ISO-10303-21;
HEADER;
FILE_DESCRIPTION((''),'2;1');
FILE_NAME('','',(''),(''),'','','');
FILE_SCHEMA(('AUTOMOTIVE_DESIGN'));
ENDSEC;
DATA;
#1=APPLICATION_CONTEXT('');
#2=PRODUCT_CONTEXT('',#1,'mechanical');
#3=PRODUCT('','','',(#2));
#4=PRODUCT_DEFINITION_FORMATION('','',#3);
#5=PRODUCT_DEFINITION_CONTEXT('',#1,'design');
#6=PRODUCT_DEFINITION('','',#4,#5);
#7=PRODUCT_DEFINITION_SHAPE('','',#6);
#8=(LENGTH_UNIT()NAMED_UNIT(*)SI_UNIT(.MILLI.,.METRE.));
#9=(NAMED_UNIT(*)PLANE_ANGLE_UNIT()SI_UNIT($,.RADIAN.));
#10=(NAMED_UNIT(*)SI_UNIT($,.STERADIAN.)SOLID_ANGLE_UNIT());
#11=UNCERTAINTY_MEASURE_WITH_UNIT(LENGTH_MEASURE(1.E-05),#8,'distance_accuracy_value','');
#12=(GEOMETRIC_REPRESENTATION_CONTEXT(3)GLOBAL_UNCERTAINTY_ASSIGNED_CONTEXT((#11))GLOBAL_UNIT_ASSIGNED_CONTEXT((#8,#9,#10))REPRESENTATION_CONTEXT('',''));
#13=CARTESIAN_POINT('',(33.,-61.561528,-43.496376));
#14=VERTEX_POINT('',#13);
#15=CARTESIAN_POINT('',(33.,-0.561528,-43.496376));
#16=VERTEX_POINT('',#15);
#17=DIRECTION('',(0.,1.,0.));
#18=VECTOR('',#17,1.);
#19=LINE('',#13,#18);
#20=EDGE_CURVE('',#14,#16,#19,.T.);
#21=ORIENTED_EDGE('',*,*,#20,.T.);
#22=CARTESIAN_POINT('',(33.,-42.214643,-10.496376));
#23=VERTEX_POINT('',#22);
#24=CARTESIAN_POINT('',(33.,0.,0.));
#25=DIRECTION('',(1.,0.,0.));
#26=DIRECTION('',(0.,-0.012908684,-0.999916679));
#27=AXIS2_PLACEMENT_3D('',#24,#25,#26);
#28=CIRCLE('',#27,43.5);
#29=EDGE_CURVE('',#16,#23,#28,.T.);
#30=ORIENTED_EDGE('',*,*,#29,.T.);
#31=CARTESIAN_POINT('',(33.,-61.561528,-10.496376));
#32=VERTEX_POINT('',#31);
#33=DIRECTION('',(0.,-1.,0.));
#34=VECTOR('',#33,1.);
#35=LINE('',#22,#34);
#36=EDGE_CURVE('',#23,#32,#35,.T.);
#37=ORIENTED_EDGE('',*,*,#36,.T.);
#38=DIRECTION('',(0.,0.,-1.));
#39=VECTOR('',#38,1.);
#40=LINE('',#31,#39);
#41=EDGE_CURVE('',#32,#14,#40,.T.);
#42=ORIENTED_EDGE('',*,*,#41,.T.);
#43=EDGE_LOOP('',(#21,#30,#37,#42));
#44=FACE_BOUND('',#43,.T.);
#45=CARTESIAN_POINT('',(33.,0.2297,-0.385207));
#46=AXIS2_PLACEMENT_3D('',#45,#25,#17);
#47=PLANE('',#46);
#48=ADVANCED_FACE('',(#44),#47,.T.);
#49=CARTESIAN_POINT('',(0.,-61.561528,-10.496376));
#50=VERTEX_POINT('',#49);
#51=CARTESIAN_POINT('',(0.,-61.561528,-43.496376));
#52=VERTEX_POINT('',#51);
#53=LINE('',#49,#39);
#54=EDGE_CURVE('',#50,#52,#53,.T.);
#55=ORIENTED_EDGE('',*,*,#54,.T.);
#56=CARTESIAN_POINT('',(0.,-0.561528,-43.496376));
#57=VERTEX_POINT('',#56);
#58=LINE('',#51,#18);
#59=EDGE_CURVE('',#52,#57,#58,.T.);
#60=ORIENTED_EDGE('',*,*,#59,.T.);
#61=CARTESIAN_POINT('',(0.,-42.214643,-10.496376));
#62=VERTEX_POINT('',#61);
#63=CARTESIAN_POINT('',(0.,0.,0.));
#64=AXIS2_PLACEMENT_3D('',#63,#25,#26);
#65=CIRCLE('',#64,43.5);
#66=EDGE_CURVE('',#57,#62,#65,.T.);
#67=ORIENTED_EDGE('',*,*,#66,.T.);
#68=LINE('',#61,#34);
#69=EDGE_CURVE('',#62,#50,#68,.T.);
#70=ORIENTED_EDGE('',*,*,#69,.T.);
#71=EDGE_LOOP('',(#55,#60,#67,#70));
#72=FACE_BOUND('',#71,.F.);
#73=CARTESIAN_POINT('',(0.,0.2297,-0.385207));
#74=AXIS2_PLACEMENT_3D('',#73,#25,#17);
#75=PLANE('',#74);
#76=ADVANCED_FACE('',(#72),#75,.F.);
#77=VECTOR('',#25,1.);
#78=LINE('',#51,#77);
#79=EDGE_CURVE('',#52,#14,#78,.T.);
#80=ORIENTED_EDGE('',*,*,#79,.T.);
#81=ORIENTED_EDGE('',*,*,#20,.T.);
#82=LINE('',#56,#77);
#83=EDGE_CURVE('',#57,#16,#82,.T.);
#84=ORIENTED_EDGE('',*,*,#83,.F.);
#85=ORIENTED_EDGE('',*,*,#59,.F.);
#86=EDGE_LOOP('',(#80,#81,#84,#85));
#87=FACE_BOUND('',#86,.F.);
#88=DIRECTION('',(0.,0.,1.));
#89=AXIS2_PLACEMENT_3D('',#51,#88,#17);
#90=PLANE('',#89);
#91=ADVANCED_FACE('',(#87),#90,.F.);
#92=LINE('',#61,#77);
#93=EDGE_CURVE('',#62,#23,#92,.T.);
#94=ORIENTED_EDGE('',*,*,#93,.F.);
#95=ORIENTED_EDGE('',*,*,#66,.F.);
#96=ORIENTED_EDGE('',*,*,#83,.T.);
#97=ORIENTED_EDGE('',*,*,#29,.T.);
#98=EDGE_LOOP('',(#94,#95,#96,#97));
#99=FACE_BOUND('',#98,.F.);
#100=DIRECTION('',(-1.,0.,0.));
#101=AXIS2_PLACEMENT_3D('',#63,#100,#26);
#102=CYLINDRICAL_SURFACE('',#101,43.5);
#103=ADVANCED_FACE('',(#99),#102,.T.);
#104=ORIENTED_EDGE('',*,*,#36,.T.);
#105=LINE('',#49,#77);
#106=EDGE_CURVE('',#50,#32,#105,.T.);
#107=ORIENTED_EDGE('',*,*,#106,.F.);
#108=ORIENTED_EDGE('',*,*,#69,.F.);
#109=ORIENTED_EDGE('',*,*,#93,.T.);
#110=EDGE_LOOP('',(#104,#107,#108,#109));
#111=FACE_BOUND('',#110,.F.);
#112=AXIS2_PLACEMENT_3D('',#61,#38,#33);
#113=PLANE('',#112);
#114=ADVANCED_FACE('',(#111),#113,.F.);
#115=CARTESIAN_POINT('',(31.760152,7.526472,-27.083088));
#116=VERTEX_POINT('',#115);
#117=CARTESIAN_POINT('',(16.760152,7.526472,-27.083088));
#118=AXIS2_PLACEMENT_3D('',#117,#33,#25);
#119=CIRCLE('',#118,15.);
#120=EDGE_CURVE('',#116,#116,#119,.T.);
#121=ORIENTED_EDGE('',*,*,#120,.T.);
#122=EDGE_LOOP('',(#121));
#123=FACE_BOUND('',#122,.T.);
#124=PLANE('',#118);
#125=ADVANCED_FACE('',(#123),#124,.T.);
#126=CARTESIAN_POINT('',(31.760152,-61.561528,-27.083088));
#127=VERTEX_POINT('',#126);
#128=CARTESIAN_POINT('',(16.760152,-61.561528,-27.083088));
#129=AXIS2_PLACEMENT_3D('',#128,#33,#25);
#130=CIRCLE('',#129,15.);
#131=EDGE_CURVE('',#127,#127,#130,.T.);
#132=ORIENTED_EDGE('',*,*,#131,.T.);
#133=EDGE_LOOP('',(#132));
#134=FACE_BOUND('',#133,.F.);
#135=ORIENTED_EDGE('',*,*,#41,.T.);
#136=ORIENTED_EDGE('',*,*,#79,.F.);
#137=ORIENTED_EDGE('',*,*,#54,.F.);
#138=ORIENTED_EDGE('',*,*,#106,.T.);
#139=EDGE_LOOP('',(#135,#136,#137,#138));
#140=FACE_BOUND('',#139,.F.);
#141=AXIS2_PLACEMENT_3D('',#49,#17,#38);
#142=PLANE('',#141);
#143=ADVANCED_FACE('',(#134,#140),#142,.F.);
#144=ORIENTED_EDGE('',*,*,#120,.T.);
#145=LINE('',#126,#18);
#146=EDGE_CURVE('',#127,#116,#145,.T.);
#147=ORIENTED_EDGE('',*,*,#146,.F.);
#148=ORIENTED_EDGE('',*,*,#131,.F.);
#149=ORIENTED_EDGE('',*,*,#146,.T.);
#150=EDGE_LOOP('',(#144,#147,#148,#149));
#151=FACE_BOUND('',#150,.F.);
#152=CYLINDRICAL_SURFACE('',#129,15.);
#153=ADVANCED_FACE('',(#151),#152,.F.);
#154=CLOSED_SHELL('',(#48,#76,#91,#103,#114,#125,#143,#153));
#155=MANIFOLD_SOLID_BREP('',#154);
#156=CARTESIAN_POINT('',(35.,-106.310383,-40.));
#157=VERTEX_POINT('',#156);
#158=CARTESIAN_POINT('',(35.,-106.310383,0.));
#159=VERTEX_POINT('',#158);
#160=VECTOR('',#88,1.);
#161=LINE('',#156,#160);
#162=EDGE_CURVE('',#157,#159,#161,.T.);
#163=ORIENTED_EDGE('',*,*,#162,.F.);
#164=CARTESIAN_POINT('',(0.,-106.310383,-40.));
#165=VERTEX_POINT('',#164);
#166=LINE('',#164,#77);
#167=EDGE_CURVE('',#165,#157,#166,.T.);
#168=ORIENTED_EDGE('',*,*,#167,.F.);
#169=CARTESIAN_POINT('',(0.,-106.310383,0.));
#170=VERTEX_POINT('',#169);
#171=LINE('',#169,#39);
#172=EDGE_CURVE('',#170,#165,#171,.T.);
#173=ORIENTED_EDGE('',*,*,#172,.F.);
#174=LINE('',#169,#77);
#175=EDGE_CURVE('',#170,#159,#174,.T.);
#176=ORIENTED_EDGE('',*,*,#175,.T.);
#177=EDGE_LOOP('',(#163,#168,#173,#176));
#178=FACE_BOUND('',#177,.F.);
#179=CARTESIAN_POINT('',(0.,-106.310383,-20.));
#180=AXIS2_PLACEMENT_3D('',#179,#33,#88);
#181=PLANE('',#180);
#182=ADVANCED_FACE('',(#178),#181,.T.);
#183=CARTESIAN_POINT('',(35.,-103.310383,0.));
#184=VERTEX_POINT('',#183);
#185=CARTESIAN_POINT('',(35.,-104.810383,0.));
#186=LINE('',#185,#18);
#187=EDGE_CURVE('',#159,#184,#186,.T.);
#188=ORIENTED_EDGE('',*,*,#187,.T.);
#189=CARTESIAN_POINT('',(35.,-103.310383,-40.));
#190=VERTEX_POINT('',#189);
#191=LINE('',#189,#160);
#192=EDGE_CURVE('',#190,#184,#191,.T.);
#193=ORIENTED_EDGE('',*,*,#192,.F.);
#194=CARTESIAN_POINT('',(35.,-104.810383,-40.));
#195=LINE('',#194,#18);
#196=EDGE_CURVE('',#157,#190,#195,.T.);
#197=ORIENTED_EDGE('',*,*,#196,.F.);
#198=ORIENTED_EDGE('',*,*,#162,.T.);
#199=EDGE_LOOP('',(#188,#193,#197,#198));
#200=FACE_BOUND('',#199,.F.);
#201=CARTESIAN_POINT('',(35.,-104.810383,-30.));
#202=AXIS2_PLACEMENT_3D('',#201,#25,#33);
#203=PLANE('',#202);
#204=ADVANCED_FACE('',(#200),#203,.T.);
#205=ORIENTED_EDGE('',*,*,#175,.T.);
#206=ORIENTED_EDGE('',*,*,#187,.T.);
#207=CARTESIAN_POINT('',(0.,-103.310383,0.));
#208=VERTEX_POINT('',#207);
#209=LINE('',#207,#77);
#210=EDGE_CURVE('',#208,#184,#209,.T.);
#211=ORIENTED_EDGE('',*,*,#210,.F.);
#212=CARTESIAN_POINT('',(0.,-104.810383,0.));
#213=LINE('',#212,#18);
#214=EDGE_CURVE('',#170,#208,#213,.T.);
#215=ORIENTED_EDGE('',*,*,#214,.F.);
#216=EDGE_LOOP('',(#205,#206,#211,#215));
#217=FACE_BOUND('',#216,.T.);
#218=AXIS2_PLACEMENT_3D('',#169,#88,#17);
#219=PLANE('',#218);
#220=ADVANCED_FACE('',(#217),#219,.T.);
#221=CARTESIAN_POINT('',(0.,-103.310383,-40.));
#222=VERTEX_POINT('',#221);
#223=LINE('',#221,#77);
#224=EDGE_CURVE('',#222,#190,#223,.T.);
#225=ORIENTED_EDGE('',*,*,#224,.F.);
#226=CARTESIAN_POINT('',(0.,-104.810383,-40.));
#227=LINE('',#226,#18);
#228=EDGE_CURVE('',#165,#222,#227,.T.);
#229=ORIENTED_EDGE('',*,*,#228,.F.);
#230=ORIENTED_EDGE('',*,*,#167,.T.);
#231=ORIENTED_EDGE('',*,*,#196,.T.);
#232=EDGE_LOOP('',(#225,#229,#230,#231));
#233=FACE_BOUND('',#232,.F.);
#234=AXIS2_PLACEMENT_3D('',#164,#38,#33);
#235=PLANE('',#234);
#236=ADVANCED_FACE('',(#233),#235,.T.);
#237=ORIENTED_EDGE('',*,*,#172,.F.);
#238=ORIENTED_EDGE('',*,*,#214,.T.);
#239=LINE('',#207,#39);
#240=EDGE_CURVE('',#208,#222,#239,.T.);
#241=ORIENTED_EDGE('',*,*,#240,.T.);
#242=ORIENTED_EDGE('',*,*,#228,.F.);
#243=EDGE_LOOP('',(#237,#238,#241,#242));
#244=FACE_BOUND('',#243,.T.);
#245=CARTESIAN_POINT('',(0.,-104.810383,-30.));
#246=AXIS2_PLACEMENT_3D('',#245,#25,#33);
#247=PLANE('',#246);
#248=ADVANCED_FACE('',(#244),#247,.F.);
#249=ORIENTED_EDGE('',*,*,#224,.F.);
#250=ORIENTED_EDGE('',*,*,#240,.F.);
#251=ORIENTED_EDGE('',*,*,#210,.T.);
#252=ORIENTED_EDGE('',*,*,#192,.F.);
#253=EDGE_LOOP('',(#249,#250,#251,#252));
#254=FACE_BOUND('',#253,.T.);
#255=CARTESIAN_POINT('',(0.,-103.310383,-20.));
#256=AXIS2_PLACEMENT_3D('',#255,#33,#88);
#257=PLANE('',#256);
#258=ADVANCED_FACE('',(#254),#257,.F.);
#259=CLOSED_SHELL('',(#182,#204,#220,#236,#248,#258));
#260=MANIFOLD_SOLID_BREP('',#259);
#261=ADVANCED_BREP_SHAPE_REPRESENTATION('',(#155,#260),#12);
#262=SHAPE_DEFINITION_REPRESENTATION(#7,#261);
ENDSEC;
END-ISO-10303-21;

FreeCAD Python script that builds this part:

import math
import FreeCAD as App
import Part
import Sketcher
from FreeCAD import Vector
Q = App.Units.Quantity

doc = App.newDocument("Part")
body = doc.addObject("PartDesign::Body", "Body")

sketch1 = body.newObject("Sketcher::SketchObject", "Sketch")
sketch1.AttachmentSupport = (doc.getObject("YZ_Plane"), [""])
sketch1.MapMode = "FlatFace"
sketch1.addGeometry([
    Part.ArcOfCircle(Part.Circle(Vector(0, 0, 0), Vector(0, 0, 1), 44), math.radians(-91), math.radians(194)),
    Part.LineSegment(Vector(-42, -10, 0), Vector(-62, -10, 0)),
    Part.LineSegment(Vector(-62, -10, 0), Vector(-62, -43, 0)),
    Part.LineSegment(Vector(-62, -43, 0), Vector(-1, -43, 0)),
], False)
sketch1.addConstraint([
    Sketcher.Constraint("Coincident", 0, 2, 1, 1),
    Sketcher.Constraint("Coincident", 1, 2, 2, 1),
    Sketcher.Constraint("Coincident", 2, 2, 3, 1),
    Sketcher.Constraint("Coincident", 3, 2, 0, 1),
    Sketcher.Constraint("Horizontal", 1),
    Sketcher.Constraint("Vertical", 2),
    Sketcher.Constraint("Horizontal", 3),
    Sketcher.Constraint("Coincident", 0, 3, -1, 1),
    Sketcher.Constraint("Radius", 0, Q("43.5 mm")),
    Sketcher.Constraint("DistanceX", 3, 1, 3, 2, Q("61 mm")),
    Sketcher.Constraint("DistanceY", 2, 2, 2, 1, Q("33 mm")),
    Sketcher.Constraint("DistanceX", 1, 2, 1, 1, Q("19.346885 mm")),
])
pad1 = body.newObject("PartDesign::Pad", "Pad")
pad1.Profile = sketch1
pad1.Length = 33

sketch2 = body.newObject("Sketcher::SketchObject", "Sketch001")
sketch2.AttachmentSupport = (doc.getObject("XZ_Plane"), [""])
sketch2.MapMode = "FlatFace"
sketch2.AttachmentOffset = App.Placement(Vector(0, 0, 61.561528), App.Rotation())
sketch2.addGeometry(Part.Circle(Vector(17, -27, 0), Vector(0, 0, 1), 15), False)
sketch2.addConstraint([
    Sketcher.Constraint("Diameter", 0, Q("30 mm")),
    Sketcher.Constraint("DistanceX", -1, 1, 0, 3, Q("16.760152 mm")),
    Sketcher.Constraint("DistanceY", 0, 3, -1, 1, Q("27.083088 mm")),
])
pocket1 = body.newObject("PartDesign::Pocket", "Pocket")
pocket1.Profile = sketch2
pocket1.Length = 69.088
body2 = doc.addObject("PartDesign::Body", "Body001")

sketch3 = body2.newObject("Sketcher::SketchObject", "Sketch002")
sketch3.AttachmentSupport = (doc.getObject("YZ_Plane001"), [""])
sketch3.MapMode = "FlatFace"
sketch3.addGeometry([
    Part.LineSegment(Vector(-106.3, 0, 0), Vector(-106.3, -20, 0)),
    Part.LineSegment(Vector(-106.3, -20, 0), Vector(-103.3, -20, 0)),
    Part.LineSegment(Vector(-103.3, -20, 0), Vector(-103.3, 0, 0)),
    Part.LineSegment(Vector(-103.3, 0, 0), Vector(-106.3, 0, 0)),
], False)
sketch3.addConstraint([
    Sketcher.Constraint("Coincident", 0, 2, 1, 1),
    Sketcher.Constraint("Coincident", 1, 2, 2, 1),
    Sketcher.Constraint("Coincident", 2, 2, 3, 1),
    Sketcher.Constraint("Coincident", 3, 2, 0, 1),
    Sketcher.Constraint("Vertical", 0),
    Sketcher.Constraint("Horizontal", 1),
    Sketcher.Constraint("Vertical", 2),
    Sketcher.Constraint("Horizontal", 3),
    Sketcher.Constraint("PointOnObject", 2, 2, -1),
    Sketcher.Constraint("DistanceX", 1, 1, 1, 2, Q("3 mm")),
    Sketcher.Constraint("DistanceY", 0, 2, 0, 1, Q("20 mm")),
    Sketcher.Constraint("DistanceX", 0, 2, -1, 1, Q("106.310383 mm")),
])
pad2 = body2.newObject("PartDesign::Pad", "Pad001")
pad2.Profile = sketch3
pad2.Length = 35
body3 = doc.addObject("PartDesign::Body", "Body002")
doc.recompute()

body3.BaseFeature = body2
doc.recompute()

mirroring = doc.addObject("Part::Mirroring", "Mirroring")
mirroring.Source = body2
mirroring.Base = Vector(17.5, -104.810383, -20)
mirroring.Normal = Vector(0, 0, -1)
body4 = doc.addObject("PartDesign::Body", "Body003")
body4.BaseFeature = mirroring
boolean = body3.newObject("PartDesign::Boolean", "Boolean")
boolean.Type = "Fuse"
boolean.addObjects([body4])
doc.recompute()
mirroring.Visibility = False

doc.recompute()
